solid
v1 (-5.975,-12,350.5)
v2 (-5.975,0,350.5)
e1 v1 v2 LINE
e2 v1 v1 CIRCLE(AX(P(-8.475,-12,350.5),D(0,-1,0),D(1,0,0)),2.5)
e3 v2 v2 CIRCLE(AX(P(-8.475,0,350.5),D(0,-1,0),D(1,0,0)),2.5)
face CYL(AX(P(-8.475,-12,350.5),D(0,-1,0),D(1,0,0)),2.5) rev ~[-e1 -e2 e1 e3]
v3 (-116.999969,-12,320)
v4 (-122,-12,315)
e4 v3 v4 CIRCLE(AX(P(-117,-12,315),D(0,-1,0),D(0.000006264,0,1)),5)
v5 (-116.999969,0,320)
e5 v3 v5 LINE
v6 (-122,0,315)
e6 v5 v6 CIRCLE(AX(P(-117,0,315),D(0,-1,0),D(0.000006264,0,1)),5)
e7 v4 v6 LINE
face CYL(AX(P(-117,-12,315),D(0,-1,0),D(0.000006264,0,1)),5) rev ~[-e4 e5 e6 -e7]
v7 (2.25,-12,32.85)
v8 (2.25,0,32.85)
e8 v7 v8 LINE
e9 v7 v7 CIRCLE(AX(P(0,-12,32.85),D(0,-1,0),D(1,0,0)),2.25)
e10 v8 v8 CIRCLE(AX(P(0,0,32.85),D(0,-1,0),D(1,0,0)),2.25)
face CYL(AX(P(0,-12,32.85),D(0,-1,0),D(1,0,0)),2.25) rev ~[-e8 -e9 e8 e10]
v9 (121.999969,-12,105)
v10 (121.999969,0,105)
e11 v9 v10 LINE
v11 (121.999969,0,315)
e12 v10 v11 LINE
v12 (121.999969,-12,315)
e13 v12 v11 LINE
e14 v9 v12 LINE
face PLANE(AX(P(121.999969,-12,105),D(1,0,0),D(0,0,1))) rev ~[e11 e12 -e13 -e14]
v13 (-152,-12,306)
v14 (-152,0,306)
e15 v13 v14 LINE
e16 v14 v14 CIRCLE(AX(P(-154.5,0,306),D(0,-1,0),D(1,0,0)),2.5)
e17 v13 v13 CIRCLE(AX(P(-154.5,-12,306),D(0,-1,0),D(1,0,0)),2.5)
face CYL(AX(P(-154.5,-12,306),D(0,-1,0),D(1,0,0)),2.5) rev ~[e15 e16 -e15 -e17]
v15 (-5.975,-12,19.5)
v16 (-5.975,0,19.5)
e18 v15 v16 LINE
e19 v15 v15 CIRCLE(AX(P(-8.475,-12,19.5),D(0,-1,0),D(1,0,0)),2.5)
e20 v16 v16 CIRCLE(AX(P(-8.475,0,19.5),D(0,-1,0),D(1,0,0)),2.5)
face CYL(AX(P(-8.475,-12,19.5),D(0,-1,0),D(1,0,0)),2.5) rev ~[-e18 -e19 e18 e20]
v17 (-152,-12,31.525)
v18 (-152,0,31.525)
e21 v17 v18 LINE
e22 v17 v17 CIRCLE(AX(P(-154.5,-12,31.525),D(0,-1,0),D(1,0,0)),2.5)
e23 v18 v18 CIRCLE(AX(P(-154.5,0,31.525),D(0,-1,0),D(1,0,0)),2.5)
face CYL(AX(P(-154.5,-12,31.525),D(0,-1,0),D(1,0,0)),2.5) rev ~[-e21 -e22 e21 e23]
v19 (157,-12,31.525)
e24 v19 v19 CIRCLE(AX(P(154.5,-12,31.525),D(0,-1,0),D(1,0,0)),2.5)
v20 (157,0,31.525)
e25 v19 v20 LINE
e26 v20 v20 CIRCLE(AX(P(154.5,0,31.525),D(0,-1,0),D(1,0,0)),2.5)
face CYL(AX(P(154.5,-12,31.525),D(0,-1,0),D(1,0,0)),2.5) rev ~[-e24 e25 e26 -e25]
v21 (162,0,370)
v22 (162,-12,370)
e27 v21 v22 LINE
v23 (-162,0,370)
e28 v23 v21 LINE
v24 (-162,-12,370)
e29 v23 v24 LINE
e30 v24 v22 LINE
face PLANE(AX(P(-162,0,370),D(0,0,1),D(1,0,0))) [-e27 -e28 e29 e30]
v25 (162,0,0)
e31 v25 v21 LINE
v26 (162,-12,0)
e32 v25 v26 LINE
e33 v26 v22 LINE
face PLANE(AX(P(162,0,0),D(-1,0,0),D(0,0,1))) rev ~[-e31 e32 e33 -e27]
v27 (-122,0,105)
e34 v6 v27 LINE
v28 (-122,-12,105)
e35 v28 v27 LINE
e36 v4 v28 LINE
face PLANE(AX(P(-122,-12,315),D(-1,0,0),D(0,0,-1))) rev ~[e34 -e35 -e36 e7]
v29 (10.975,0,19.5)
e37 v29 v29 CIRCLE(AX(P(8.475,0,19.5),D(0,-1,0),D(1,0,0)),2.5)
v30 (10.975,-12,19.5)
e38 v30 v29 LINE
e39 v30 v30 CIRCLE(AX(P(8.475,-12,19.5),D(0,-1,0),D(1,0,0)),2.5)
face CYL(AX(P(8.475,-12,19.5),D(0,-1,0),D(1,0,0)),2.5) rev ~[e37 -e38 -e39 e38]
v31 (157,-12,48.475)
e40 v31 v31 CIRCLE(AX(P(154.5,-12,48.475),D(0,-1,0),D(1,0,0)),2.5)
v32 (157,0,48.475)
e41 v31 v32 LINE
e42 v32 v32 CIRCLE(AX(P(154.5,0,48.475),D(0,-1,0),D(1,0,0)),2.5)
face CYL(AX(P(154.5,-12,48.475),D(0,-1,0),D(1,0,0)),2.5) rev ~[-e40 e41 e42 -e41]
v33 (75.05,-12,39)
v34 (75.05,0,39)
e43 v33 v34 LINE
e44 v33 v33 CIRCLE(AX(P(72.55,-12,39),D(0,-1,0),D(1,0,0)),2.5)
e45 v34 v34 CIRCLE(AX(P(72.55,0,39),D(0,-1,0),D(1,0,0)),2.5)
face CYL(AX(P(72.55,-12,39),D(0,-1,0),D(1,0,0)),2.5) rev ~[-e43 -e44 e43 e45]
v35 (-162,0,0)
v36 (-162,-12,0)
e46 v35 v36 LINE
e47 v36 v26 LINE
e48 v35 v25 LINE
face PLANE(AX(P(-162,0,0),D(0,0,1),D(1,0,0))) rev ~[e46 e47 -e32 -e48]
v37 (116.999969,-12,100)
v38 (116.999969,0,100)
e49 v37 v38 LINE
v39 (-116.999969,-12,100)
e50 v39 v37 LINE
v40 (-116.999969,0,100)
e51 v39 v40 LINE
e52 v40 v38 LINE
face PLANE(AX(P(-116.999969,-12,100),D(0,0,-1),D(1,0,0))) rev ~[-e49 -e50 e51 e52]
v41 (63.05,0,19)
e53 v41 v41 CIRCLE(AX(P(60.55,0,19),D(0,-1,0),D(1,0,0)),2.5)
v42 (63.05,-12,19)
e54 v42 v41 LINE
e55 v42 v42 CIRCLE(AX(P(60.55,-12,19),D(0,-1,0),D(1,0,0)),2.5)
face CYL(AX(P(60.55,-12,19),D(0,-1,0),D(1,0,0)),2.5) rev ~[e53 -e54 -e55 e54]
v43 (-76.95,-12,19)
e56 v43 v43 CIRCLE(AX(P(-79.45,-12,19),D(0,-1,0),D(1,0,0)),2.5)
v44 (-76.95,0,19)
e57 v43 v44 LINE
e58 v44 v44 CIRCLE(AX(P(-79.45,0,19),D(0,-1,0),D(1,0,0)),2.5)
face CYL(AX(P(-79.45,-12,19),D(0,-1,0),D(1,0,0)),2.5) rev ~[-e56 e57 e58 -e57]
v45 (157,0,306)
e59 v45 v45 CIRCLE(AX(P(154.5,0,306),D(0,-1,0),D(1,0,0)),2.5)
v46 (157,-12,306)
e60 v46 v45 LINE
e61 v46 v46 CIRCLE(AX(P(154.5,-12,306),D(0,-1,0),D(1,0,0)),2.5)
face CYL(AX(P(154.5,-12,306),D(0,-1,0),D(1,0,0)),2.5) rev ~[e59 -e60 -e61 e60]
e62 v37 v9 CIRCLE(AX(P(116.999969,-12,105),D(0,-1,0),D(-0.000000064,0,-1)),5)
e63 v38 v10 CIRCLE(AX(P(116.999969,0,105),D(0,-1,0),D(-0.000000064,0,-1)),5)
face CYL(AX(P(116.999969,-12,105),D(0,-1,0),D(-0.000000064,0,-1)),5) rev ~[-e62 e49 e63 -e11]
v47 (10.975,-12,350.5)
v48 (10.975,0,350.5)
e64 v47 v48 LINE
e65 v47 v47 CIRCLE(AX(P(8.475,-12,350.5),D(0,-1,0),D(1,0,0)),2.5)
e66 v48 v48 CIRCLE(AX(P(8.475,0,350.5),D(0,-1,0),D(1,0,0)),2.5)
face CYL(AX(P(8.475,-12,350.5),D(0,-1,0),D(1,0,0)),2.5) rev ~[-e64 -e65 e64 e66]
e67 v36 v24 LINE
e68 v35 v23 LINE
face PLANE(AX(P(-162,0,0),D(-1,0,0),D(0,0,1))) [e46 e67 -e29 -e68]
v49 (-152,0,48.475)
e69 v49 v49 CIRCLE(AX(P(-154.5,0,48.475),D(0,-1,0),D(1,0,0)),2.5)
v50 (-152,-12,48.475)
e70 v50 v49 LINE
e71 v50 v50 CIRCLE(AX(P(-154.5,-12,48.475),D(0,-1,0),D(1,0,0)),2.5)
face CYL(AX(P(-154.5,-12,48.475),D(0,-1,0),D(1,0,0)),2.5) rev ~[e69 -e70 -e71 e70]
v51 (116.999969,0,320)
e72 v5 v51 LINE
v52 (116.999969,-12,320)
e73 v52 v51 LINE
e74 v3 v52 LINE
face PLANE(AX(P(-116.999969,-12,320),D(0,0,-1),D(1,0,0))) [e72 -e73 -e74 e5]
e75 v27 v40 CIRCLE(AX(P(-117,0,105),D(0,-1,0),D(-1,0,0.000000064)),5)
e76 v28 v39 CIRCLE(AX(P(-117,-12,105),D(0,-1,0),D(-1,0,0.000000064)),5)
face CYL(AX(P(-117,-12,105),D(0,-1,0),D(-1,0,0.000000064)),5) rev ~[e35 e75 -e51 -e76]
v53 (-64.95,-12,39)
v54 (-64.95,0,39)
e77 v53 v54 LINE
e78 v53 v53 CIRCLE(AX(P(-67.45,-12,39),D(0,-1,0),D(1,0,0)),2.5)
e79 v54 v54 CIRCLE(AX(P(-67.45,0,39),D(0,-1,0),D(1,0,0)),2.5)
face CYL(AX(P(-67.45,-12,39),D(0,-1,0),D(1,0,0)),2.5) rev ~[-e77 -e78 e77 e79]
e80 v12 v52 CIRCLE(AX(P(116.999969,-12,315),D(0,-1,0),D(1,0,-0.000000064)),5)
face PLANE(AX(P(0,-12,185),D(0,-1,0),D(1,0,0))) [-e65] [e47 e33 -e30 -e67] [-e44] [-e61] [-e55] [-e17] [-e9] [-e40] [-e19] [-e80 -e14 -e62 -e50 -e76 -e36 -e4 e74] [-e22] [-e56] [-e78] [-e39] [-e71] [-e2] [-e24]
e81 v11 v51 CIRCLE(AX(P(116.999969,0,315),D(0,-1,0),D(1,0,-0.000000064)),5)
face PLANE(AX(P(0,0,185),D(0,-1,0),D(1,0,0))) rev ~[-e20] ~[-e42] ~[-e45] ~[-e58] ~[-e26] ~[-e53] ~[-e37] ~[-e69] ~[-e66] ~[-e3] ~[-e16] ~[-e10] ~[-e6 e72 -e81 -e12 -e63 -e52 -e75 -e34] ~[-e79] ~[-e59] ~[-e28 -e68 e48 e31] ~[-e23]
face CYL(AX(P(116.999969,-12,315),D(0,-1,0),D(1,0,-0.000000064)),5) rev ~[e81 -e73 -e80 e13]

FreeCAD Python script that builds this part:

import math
import FreeCAD as App
import Part
import Sketcher

V = App.Vector
Q = App.Units.Quantity

doc = App.newDocument("Part")
params = doc.addObject("Spreadsheet::Sheet", "Params")
for row, (alias, value) in enumerate([
    ("sketch1_width", "324 mm"),
    ("sketch1_height", "370 mm"),
    ("pad1_length", "12 mm"),
    ("sketch2_radius", "5 mm"),
    ("sketch2_height", "210 mm"),
    ("sketch3_diameter", "5 mm"),
    ("sketch4_diameter", "5 mm"),
    ("sketch4_diameter2", "4.5 mm"),
], start=1):
    params.set(f"A{row}", alias)
    params.set(f"B{row}", "=" + value)
    params.setAlias(f"B{row}", alias)

body = doc.addObject("PartDesign::Body", "Body")

# Sketch on XZ plane
sketch1 = body.newObject("Sketcher::SketchObject", "Sketch")
sketch1.AttachmentSupport = (doc.getObject("XZ_Plane"), [""])
sketch1.MapMode = "FlatFace"
sketch1.addGeometry([
    Part.LineSegment(V(-162, 370, 0), V(-162, 0, 0)),
    Part.LineSegment(V(-162, 0, 0), V(162, 0, 0)),
    Part.LineSegment(V(162, 0, 0), V(162, 370, 0)),
    Part.LineSegment(V(162, 370, 0), V(-162, 370, 0)),
], False)
sketch1.addConstraint([
    Sketcher.Constraint("Coincident", 0, 2, 1, 1),
    Sketcher.Constraint("Coincident", 1, 2, 2, 1),
    Sketcher.Constraint("Coincident", 2, 2, 3, 1),
    Sketcher.Constraint("Coincident", 3, 2, 0, 1),
    Sketcher.Constraint("Vertical", 0),
    Sketcher.Constraint("Horizontal", 1),
    Sketcher.Constraint("Vertical", 2),
    Sketcher.Constraint("Horizontal", 3),
    Sketcher.Constraint("Symmetric", 0, 2, 1, 2, -1, 1),
    Sketcher.Constraint("DistanceX", 1, 1, 1, 2, Q("324 mm")),
    Sketcher.Constraint("DistanceY", 0, 2, 0, 1, Q("370 mm")),
])
sketch1.setExpression("Constraints[9]", "Params.sketch1_width")
sketch1.setExpression("Constraints[10]", "Params.sketch1_height")
pad1 = body.newObject("PartDesign::Pad", "Pad")
pad1.Profile = sketch1
pad1.setExpression("Length", "Params.pad1_length")

# Sketch on XZ plane
sketch2 = body.newObject("Sketcher::SketchObject", "Sketch001")
sketch2.AttachmentSupport = (doc.getObject("XZ_Plane"), [""])
sketch2.MapMode = "FlatFace"
sketch2.AttachmentOffset = App.Placement(V(0, 0, 12), App.Rotation())
sketch2.addGeometry([
    Part.ArcOfCircle(Part.Circle(V(-117, 315, 0), V(0, 0, 1), 5), math.radians(90), math.radians(180)),  # 0
    Part.LineSegment(V(-122, 315, 0), V(-122, 105, 0)),  # 1
    Part.ArcOfCircle(Part.Circle(V(-117, 105, 0), V(0, 0, 1), 5), math.radians(180), math.radians(270)),  # 2
    Part.LineSegment(V(-117, 100, 0), V(117, 100, 0)),  # 3
    Part.ArcOfCircle(Part.Circle(V(117, 105, 0), V(0, 0, 1), 5), math.radians(-90), math.radians(0)),  # 4
    Part.LineSegment(V(122, 105, 0), V(122, 315, 0)),  # 5
    Part.ArcOfCircle(Part.Circle(V(117, 315, 0), V(0, 0, 1), 5), math.radians(0), math.radians(90)),  # 6
    Part.LineSegment(V(117, 320, 0), V(-117, 320, 0)),  # 7
], False)
sketch2.addConstraint([
    Sketcher.Constraint("Tangent", 0, 2, 1, 1),
    Sketcher.Constraint("Tangent", 1, 2, 2, 1),
    Sketcher.Constraint("Coincident", 2, 2, 3, 1),
    Sketcher.Constraint("Tangent", 3, 2, 4, 1),
    Sketcher.Constraint("Tangent", 4, 2, 5, 1),
    Sketcher.Constraint("Tangent", 5, 2, 6, 1),
    Sketcher.Constraint("Tangent", 6, 2, 7, 1),
    Sketcher.Constraint("Coincident", 7, 2, 0, 1),
    Sketcher.Constraint("Vertical", 1),
    Sketcher.Constraint("Horizontal", 3),
    Sketcher.Constraint("Vertical", 5),
    Sketcher.Constraint("Horizontal", 7),
    Sketcher.Constraint("Equal", 0, 2),
    Sketcher.Constraint("Equal", 2, 4),
    Sketcher.Constraint("Equal", 4, 6),
    Sketcher.Constraint("Vertical", 2, 2, 7, 2),
    Sketcher.Constraint("Radius", 0, Q("5 mm")),
    Sketcher.Constraint("DistanceY", 1, 2, 1, 1, Q("210 mm")),
    Sketcher.Constraint("DistanceX", 0, 3, -1, 1, Q("117 mm")),
    Sketcher.Constraint("DistanceY", -1, 1, 0, 3, Q("315 mm")),
    Sketcher.Constraint("DistanceX", 3, 1, 3, 2, Q("233.999938 mm")),
    Sketcher.Constraint("DistanceX", -1, 1, 4, 3, Q("116.999969 mm")),
])
sketch2.setExpression("Constraints[16]", "Params.sketch2_radius")
sketch2.setExpression("Constraints[17]", "Params.sketch2_height")
pocket1 = body.newObject("PartDesign::Pocket", "Pocket")
pocket1.Profile = sketch2
pocket1.Type = "ThroughAll"

# Sketch on XZ plane
sketch3 = body.newObject("Sketcher::SketchObject", "Sketch002")
sketch3.AttachmentSupport = (doc.getObject("XZ_Plane"), [""])
sketch3.MapMode = "FlatFace"
sketch3.AttachmentOffset = App.Placement(V(0, 0, 12), App.Rotation())
sketch3.addGeometry([
    Part.Circle(V(-8.5, 19.5, 0), V(0, 0, 1), 2.5),  # 0
    Part.Circle(V(8.5, 19.5, 0), V(0, 0, 1), 2.5),  # 1
    Part.Circle(V(-8.5, 350.5, 0), V(0, 0, 1), 2.5),  # 2
    Part.Circle(V(8.5, 350.5, 0), V(0, 0, 1), 2.5),  # 3
    Part.Circle(V(154.5, 31.5, 0), V(0, 0, 1), 2.5),  # 4
    Part.Circle(V(154.5, 306, 0), V(0, 0, 1), 2.5),  # 5
    Part.Circle(V(-154.5, 306, 0), V(0, 0, 1), 2.5),  # 6
    Part.Circle(V(-154.5, 31.5, 0), V(0, 0, 1), 2.5),  # 7
    Part.Circle(V(-154.5, 48.5, 0), V(0, 0, 1), 2.5),  # 8
    Part.Circle(V(154.5, 48.5, 0), V(0, 0, 1), 2.5),  # 9
], False)
sketch3.addConstraint([
    Sketcher.Constraint("Equal", 0, 1),
    Sketcher.Constraint("Equal", 1, 2),
    Sketcher.Constraint("Equal", 2, 3),
    Sketcher.Constraint("Equal", 3, 4),
    Sketcher.Constraint("Equal", 4, 5),
    Sketcher.Constraint("Equal", 5, 6),
    Sketcher.Constraint("Equal", 6, 7),
    Sketcher.Constraint("Equal", 7, 8),
    Sketcher.Constraint("Equal", 8, 9),
    Sketcher.Constraint("Symmetric", 0, 3, 1, 3, -2),
    Sketcher.Constraint("Symmetric", 2, 3, 3, 3, -2),
    Sketcher.Constraint("Symmetric", 5, 3, 6, 3, -2),
    Sketcher.Constraint("Symmetric", 4, 3, 7, 3, -2),
    Sketcher.Constraint("Symmetric", 8, 3, 9, 3, -2),
    Sketcher.Constraint("Vertical", 0, 3, 2, 3),
    Sketcher.Constraint("Vertical", 4, 3, 5, 3),
    Sketcher.Constraint("Vertical", 7, 3, 8, 3),
    Sketcher.Constraint("Diameter", 0, Q("5 mm")),
    Sketcher.Constraint("DistanceY", -1, 1, 5, 3, Q("306 mm")),
    Sketcher.Constraint("DistanceY", 0, 3, 2, 3, Q("331 mm")),
    Sketcher.Constraint("DistanceX", 6, 3, 5, 3, Q("309 mm")),
    Sketcher.Constraint("DistanceY", -1, 1, 0, 3, Q("19.5 mm")),
    Sketcher.Constraint("DistanceX", 0, 3, 1, 3, Q("16.95 mm")),
    Sketcher.Constraint("DistanceY", 7, 3, 8, 3, Q("16.95 mm")),
    Sketcher.Constraint("DistanceY", -1, 1, 4, 3, Q("31.525 mm")),
])
sketch3.setExpression("Constraints[17]", "Params.sketch3_diameter")
pocket2 = body.newObject("PartDesign::Pocket", "Pocket001")
pocket2.Profile = sketch3
pocket2.Type = "ThroughAll"

# Sketch on XZ plane
sketch4 = body.newObject("Sketcher::SketchObject", "Sketch003")
sketch4.AttachmentSupport = (doc.getObject("XZ_Plane"), [""])
sketch4.MapMode = "FlatFace"
sketch4.AttachmentOffset = App.Placement(V(0, 0, 12), App.Rotation())
sketch4.addGeometry([
    Part.Circle(V(-79.5, 19, 0), V(0, 0, 1), 2.5),  # 0
    Part.Circle(V(-67.5, 39, 0), V(0, 0, 1), 2.5),  # 1
    Part.Circle(V(60.5, 19, 0), V(0, 0, 1), 2.5),  # 2
    Part.Circle(V(72.5, 39, 0), V(0, 0, 1), 2.5),  # 3
    Part.Circle(V(0, 32.9, 0), V(0, 0, 1), 2.2),  # 4
], False)
sketch4.addConstraint([
    Sketcher.Constraint("Equal", 0, 1),
    Sketcher.Constraint("Equal", 1, 2),
    Sketcher.Constraint("Equal", 2, 3),
    Sketcher.Constraint("PointOnObject", 4, 3, -2),
    Sketcher.Constraint("Horizontal", 0, 3, 2, 3),
    Sketcher.Constraint("Horizontal", 1, 3, 3, 3),
    Sketcher.Constraint("Diameter", 0, Q("5 mm")),
    Sketcher.Constraint("Diameter", 4, Q("4.5 mm")),
    Sketcher.Constraint("DistanceY", -1, 1, 0, 3, Q("19 mm")),
    Sketcher.Constraint("DistanceY", -1, 1, 1, 3, Q("39 mm")),
    Sketcher.Constraint("DistanceX", 0, 3, 1, 3, Q("12 mm")),
    Sketcher.Constraint("DistanceX", 1, 3, 2, 3, Q("128 mm")),
    Sketcher.Constraint("DistanceX", 2, 3, 3, 3, Q("12 mm")),
    Sketcher.Constraint("DistanceX", 0, 3, -1, 1, Q("79.45 mm")),
    Sketcher.Constraint("DistanceY", -1, 1, 4, 3, Q("32.85 mm")),
])
sketch4.setExpression("Constraints[6]", "Params.sketch4_diameter")
sketch4.setExpression("Constraints[7]", "Params.sketch4_diameter2")
pocket3 = body.newObject("PartDesign::Pocket", "Pocket002")
pocket3.Profile = sketch4
pocket3.Type = "ThroughAll"

doc.recompute()
